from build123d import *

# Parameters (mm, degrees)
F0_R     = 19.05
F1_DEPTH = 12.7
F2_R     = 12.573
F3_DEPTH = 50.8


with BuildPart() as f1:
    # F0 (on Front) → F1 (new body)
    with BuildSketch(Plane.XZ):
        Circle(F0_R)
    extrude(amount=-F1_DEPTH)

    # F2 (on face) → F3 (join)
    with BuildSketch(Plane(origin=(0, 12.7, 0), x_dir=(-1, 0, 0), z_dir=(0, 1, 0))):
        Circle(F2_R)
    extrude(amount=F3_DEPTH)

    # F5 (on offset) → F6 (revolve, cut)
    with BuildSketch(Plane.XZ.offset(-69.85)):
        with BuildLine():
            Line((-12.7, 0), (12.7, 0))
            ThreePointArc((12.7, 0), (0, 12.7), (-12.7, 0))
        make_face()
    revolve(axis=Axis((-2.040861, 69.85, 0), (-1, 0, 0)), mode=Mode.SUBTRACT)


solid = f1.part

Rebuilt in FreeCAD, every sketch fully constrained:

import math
import FreeCAD as App
import Part
import Sketcher
from FreeCAD import Vector
Q = App.Units.Quantity

doc = App.newDocument("Part")
body = doc.addObject("PartDesign::Body", "Body")

sketch1 = body.newObject("Sketcher::SketchObject", "Sketch")
sketch1.AttachmentSupport = (doc.getObject("XZ_Plane"), [""])
sketch1.MapMode = "FlatFace"
sketch1.addGeometry(Part.Circle(Vector(0, 0, 0), Vector(0, 0, 1), 19), False)
sketch1.addConstraint(Sketcher.Constraint("Coincident", 0, 3, -1, 1))
sketch1.addConstraint(Sketcher.Constraint("Diameter", 0, Q("1.5 in")))
pad1 = body.newObject("PartDesign::Pad", "Pad")
pad1.Profile = sketch1
pad1.Length = Q("0.5 in")
pad1.Reversed = True

sketch2 = body.newObject("Sketcher::SketchObject", "Sketch001")
sketch2.AttachmentSupport = (doc.getObject("XZ_Plane"), [""])
sketch2.MapMode = "FlatFace"
sketch2.AttachmentOffset = App.Placement(Vector(0, 0, -0.5 * 25.4), App.Rotation())
sketch2.addGeometry(Part.Circle(Vector(0, 0, 0), Vector(0, 0, 1), 13), False)
sketch2.addConstraint(Sketcher.Constraint("Coincident", 0, 3, -1, 1))
sketch2.addConstraint(Sketcher.Constraint("Diameter", 0, Q("0.99 in")))
pad2 = body.newObject("PartDesign::Pad", "Pad001")
pad2.Profile = sketch2
pad2.Length = Q("2 in")
pad2.Reversed = True

sketch3 = body.newObject("Sketcher::SketchObject", "Sketch002")
sketch3.AttachmentSupport = (doc.getObject("XZ_Plane"), [""])
sketch3.MapMode = "FlatFace"
sketch3.AttachmentOffset = App.Placement(Vector(0, 0, -2.75 * 25.4), App.Rotation())
sketch3.addGeometry(Part.LineSegment(Vector(-13, 0, 0), Vector(13, 0, 0)), False)
sketch3.addGeometry(Part.ArcOfCircle(Part.Circle(Vector(0, 0, 0), Vector(0, 0, 1), 13), math.radians(0), math.radians(180)), False)
sketch3.addConstraint(Sketcher.Constraint("Coincident", 0, 1, 1, 2))
sketch3.addConstraint(Sketcher.Constraint("Coincident", 1, 1, 0, 2))
sketch3.addConstraint(Sketcher.Constraint("Horizontal", 0))
sketch3.addConstraint(Sketcher.Constraint("Coincident", 1, 3, -1, 1))
sketch3.addConstraint(Sketcher.Constraint("PointOnObject", 0, 1, -1))
sketch3.addConstraint(Sketcher.Constraint("Radius", 1, Q("0.5 in")))
groove = body.newObject("PartDesign::Groove", "Groove")
groove.Profile = sketch3
groove.ReferenceAxis = (sketch3, ["H_Axis"])
groove.Angle = 360

doc.recompute()
